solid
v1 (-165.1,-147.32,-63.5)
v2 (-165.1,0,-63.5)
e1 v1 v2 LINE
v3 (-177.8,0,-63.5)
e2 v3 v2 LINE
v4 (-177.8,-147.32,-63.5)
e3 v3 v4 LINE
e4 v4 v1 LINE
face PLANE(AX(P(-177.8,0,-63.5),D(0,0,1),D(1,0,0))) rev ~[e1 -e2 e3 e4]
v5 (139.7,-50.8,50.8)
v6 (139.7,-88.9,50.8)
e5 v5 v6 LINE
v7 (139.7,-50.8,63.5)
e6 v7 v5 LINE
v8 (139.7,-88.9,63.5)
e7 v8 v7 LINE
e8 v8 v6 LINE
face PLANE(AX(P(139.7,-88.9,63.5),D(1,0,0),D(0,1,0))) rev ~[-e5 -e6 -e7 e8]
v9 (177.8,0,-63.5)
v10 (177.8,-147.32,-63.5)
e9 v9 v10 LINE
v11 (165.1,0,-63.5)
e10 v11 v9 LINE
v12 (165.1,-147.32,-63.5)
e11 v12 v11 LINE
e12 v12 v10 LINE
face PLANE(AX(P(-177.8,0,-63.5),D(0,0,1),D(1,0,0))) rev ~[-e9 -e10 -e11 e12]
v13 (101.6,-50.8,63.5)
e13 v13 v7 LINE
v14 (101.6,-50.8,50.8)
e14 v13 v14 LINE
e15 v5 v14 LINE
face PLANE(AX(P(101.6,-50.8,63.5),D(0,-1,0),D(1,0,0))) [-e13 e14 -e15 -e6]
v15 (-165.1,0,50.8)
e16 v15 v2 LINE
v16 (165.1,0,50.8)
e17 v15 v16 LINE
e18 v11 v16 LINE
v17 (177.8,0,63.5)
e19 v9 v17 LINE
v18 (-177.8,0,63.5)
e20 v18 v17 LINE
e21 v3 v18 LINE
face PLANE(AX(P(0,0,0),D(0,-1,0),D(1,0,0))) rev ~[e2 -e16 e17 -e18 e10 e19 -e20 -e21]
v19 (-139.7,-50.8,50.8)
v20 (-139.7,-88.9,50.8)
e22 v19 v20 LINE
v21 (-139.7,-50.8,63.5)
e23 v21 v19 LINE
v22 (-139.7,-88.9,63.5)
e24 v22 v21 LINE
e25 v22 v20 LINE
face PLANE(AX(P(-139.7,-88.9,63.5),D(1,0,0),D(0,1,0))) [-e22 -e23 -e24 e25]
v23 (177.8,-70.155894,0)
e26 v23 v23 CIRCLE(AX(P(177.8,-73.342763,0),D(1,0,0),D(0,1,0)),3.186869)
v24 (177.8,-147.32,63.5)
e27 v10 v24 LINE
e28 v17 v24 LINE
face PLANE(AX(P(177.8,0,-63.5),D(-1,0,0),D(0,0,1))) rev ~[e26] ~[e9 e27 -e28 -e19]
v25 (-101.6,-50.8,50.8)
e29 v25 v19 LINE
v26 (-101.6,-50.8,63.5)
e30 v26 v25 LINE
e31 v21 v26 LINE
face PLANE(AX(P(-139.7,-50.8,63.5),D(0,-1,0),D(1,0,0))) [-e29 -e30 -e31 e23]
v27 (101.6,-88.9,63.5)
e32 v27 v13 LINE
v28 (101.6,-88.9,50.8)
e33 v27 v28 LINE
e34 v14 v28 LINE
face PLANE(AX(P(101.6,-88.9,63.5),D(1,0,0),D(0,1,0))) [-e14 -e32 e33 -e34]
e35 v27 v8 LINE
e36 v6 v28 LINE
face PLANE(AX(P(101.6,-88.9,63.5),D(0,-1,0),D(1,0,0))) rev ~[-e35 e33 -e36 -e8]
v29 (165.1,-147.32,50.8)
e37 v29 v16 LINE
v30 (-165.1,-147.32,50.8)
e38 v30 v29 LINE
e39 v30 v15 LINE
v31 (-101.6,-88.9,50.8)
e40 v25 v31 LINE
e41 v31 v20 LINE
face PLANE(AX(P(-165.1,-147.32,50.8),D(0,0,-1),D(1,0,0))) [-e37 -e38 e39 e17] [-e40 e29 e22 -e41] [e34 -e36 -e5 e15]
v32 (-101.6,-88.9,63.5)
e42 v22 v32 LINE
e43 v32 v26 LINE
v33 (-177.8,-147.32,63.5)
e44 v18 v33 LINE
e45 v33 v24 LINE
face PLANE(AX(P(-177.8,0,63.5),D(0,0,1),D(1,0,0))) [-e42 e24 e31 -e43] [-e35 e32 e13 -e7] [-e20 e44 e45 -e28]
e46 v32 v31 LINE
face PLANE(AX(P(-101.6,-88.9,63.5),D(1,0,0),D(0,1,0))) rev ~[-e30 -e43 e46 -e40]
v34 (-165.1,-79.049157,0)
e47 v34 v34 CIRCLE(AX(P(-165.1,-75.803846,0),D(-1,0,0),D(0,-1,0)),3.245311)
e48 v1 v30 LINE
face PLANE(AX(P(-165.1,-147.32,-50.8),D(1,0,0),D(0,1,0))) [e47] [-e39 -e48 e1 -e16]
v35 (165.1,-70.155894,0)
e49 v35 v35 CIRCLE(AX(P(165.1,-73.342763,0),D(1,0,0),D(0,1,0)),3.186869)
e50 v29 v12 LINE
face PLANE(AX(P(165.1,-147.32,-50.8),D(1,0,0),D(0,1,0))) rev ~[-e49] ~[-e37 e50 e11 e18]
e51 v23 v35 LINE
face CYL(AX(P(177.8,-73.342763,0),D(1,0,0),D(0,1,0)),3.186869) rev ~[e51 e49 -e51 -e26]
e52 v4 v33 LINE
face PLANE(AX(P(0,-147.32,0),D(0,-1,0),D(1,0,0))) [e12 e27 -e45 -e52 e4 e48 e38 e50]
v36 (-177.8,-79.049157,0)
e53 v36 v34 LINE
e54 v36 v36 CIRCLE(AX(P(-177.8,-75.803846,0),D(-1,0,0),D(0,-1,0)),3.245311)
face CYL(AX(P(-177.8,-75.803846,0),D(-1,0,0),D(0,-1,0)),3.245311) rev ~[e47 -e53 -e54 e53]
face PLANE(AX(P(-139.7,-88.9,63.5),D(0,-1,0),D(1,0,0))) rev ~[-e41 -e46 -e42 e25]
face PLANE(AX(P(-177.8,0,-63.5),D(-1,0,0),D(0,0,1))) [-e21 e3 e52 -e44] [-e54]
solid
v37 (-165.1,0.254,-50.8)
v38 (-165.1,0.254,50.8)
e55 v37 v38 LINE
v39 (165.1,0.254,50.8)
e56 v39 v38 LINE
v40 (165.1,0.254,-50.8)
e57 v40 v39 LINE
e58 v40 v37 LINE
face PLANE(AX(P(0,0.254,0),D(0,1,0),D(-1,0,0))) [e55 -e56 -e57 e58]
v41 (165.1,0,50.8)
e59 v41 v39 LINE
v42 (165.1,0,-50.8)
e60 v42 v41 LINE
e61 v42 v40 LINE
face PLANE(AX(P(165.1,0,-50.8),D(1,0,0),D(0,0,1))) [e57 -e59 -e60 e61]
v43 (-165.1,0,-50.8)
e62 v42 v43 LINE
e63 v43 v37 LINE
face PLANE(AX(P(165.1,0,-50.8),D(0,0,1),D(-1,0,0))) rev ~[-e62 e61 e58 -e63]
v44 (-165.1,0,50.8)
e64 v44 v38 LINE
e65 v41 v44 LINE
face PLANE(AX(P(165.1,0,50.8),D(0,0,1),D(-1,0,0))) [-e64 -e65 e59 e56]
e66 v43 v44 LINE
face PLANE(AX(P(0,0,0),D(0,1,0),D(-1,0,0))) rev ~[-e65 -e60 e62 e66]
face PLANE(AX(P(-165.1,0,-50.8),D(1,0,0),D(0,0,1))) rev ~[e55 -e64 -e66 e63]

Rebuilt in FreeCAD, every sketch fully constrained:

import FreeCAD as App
import Part
import Sketcher

V = App.Vector
Q = App.Units.Quantity


def add_polygon(sketch, points):
    """Adds a closed chain of lines whose ends are joined by coincident constraints."""
    first, n = sketch.GeometryCount, len(points)
    for a, b in zip(points, points[1:] + points[:1]):
        sketch.addGeometry(Part.LineSegment(App.Vector(*a, 0), App.Vector(*b, 0)), False)
    for i in range(n):
        sketch.addConstraint(Sketcher.Constraint("Coincident", first + i, 2, first + (i + 1) % n, 1))

doc = App.newDocument("Part")
params = doc.addObject("Spreadsheet::Sheet", "Params")
for row, (alias, value) in enumerate([
    ("sketch1_width", "14 in"),
    ("sketch1_height", "5 in"),
    ("pad1_length", "5.8 in"),
    ("sketch2_width", "13 in"),
    ("sketch2_height", "4 in"),
    ("pocket2_length", "1 in"),
    ("pocket3_length", "1 in"),
    ("sketch5_width", "13 in"),
    ("sketch5_height", "5.8 in"),
    ("pocket4_length", "1 in"),
    ("sketch6_width", "1.5 in"),
    ("pocket5_length", "1 in"),
    ("sketch7_width", "1.5 in"),
    ("pocket6_length", "1 in"),
    ("sketch8_width", "13 in"),
    ("sketch8_height", "4 in"),
    ("pad2_length", "0.01 in"),
], start=1):
    params.set(f"A{row}", alias)
    params.set(f"B{row}", "=" + value)
    params.setAlias(f"B{row}", alias)

body = doc.addObject("PartDesign::Body", "Body")

# Sketch on XZ plane
sketch1 = body.newObject("Sketcher::SketchObject", "Sketch")
sketch1.AttachmentSupport = (doc.getObject("XZ_Plane"), [""])
sketch1.MapMode = "FlatFace"
add_polygon(sketch1, [(-178, 64), (-178, -64), (178, -64), (178, 64)])  # lines 0-3
sketch1.addConstraint(Sketcher.Constraint("Vertical", 0))
sketch1.addConstraint(Sketcher.Constraint("Horizontal", 1))
sketch1.addConstraint(Sketcher.Constraint("Vertical", 2))
sketch1.addConstraint(Sketcher.Constraint("Horizontal", 3))
sketch1.addConstraint(Sketcher.Constraint("Symmetric", 0, 2, 2, 2, -1, 1))
sketch1.addConstraint(Sketcher.Constraint("DistanceX", 1, 1, 1, 2, Q("14 in")))
sketch1.addConstraint(Sketcher.Constraint("DistanceY", 0, 2, 0, 1, Q("5 in")))
sketch1.setExpression("Constraints[9]", "Params.sketch1_width")
sketch1.setExpression("Constraints[10]", "Params.sketch1_height")
pad1 = body.newObject("PartDesign::Pad", "Pad")
pad1.Profile = sketch1
pad1.setExpression("Length", "Params.pad1_length")

# Sketch on XZ plane
sketch2 = body.newObject("Sketcher::SketchObject", "Sketch001")
sketch2.AttachmentSupport = (doc.getObject("XZ_Plane"), [""])
sketch2.MapMode = "FlatFace"
sketch2.AttachmentOffset = App.Placement(V(0, 0, 5.8 * 25.4), App.Rotation())
add_polygon(sketch2, [(-165, 51), (-165, -51), (165, -51), (165, 51)])  # lines 0-3
sketch2.addConstraint(Sketcher.Constraint("Vertical", 0))
sketch2.addConstraint(Sketcher.Constraint("Horizontal", 1))
sketch2.addConstraint(Sketcher.Constraint("Vertical", 2))
sketch2.addConstraint(Sketcher.Constraint("Horizontal", 3))
sketch2.addConstraint(Sketcher.Constraint("Symmetric", 0, 2, 2, 2, -1, 1))
sketch2.addConstraint(Sketcher.Constraint("DistanceX", 1, 1, 1, 2, Q("13 in")))
sketch2.addConstraint(Sketcher.Constraint("DistanceY", 0, 2, 0, 1, Q("4 in")))
sketch2.setExpression("Constraints[9]", "Params.sketch2_width")
sketch2.setExpression("Constraints[10]", "Params.sketch2_height")
pocket1 = body.newObject("PartDesign::Pocket", "Pocket")
pocket1.Profile = sketch2
pocket1.Type = "ThroughAll"

# Sketch on YZ plane
sketch3 = body.newObject("Sketcher::SketchObject", "Sketch002")
sketch3.AttachmentSupport = (doc.getObject("YZ_Plane"), [""])
sketch3.MapMode = "FlatFace"
sketch3.AttachmentOffset = App.Placement(V(0, 0, -7 * 25.4), App.Rotation())
sketch3.addGeometry(Part.Circle(V(-75.8, 0, 0), V(0, 0, 1), 3.2), False)
sketch3.addConstraint(Sketcher.Constraint("PointOnObject", 0, 3, -1))
sketch3.addConstraint(Sketcher.Constraint("Diameter", 0, Q("6.490622 mm")))
sketch3.addConstraint(Sketcher.Constraint("DistanceX", 0, 3, -1, 1, Q("75.803846 mm")))
pocket2 = body.newObject("PartDesign::Pocket", "Pocket001")
pocket2.Profile = sketch3
pocket2.setExpression("Length", "Params.pocket2_length")
pocket2.Reversed = True

# Sketch on YZ plane
sketch4 = body.newObject("Sketcher::SketchObject", "Sketch003")
sketch4.AttachmentSupport = (doc.getObject("YZ_Plane"), [""])
sketch4.MapMode = "FlatFace"
sketch4.AttachmentOffset = App.Placement(V(0, 0, 7 * 25.4), App.Rotation())
sketch4.addGeometry(Part.Circle(V(-73.3, 0, 0), V(0, 0, 1), 3.2), False)
sketch4.addConstraint(Sketcher.Constraint("PointOnObject", 0, 3, -1))
sketch4.addConstraint(Sketcher.Constraint("Diameter", 0, Q("6.373738 mm")))
sketch4.addConstraint(Sketcher.Constraint("DistanceX", 0, 3, -1, 1, Q("73.342763 mm")))
pocket3 = body.newObject("PartDesign::Pocket", "Pocket002")
pocket3.Profile = sketch4
pocket3.setExpression("Length", "Params.pocket3_length")

# Sketch on XY plane
sketch5 = body.newObject("Sketcher::SketchObject", "Sketch004")
sketch5.AttachmentSupport = (doc.getObject("XY_Plane"), [""])
sketch5.MapMode = "FlatFace"
sketch5.AttachmentOffset = App.Placement(V(0, 0, -2 * 25.4), App.Rotation())
add_polygon(sketch5, [(-165, 0), (-165, -147), (165, -147), (165, 0)])  # lines 0-3
sketch5.addConstraint(Sketcher.Constraint("Vertical", 0))
sketch5.addConstraint(Sketcher.Constraint("Horizontal", 1))
sketch5.addConstraint(Sketcher.Constraint("Vertical", 2))
sketch5.addConstraint(Sketcher.Constraint("Horizontal", 3))
sketch5.addConstraint(Sketcher.Constraint("Symmetric", 2, 2, 3, 2, -1, 1))
sketch5.addConstraint(Sketcher.Constraint("DistanceX", 1, 1, 1, 2, Q("13 in")))
sketch5.addConstraint(Sketcher.Constraint("DistanceY", 0, 2, 0, 1, Q("5.8 in")))
sketch5.setExpression("Constraints[9]", "Params.sketch5_width")
sketch5.setExpression("Constraints[10]", "Params.sketch5_height")
pocket4 = body.newObject("PartDesign::Pocket", "Pocket003")
pocket4.Profile = sketch5
pocket4.setExpression("Length", "Params.pocket4_length")

# Sketch on XY plane
sketch6 = body.newObject("Sketcher::SketchObject", "Sketch005")
sketch6.AttachmentSupport = (doc.getObject("XY_Plane"), [""])
sketch6.MapMode = "FlatFace"
sketch6.AttachmentOffset = App.Placement(V(0, 0, 2.5 * 25.4), App.Rotation())
add_polygon(sketch6, [(102, -51), (102, -89), (140, -89), (140, -51)])  # lines 0-3
sketch6.addConstraint(Sketcher.Constraint("Vertical", 0))
sketch6.addConstraint(Sketcher.Constraint("Horizontal", 1))
sketch6.addConstraint(Sketcher.Constraint("Vertical", 2))
sketch6.addConstraint(Sketcher.Constraint("Horizontal", 3))
sketch6.addConstraint(Sketcher.Constraint("Equal", 3, 0))
sketch6.addConstraint(Sketcher.Constraint("DistanceX", 1, 1, 1, 2, Q("1.5 in")))
sketch6.addConstraint(Sketcher.Constraint("DistanceX", -1, 1, 0, 2, Q("4 in")))
sketch6.addConstraint(Sketcher.Constraint("DistanceY", 2, 2, -1, 1, Q("2 in")))
sketch6.setExpression("Constraints[9]", "Params.sketch6_width")
pocket5 = body.newObject("PartDesign::Pocket", "Pocket004")
pocket5.Profile = sketch6
pocket5.setExpression("Length", "Params.pocket5_length")

# Sketch on XY plane
sketch7 = body.newObject("Sketcher::SketchObject", "Sketch006")
sketch7.AttachmentSupport = (doc.getObject("XY_Plane"), [""])
sketch7.MapMode = "FlatFace"
sketch7.AttachmentOffset = App.Placement(V(0, 0, 2.5 * 25.4), App.Rotation())
add_polygon(sketch7, [(-140, -51), (-140, -89), (-102, -89), (-102, -51)])  # lines 0-3
sketch7.addConstraint(Sketcher.Constraint("Vertical", 0))
sketch7.addConstraint(Sketcher.Constraint("Horizontal", 1))
sketch7.addConstraint(Sketcher.Constraint("Vertical", 2))
sketch7.addConstraint(Sketcher.Constraint("Horizontal", 3))
sketch7.addConstraint(Sketcher.Constraint("Equal", 3, 0))
sketch7.addConstraint(Sketcher.Constraint("DistanceX", 1, 1, 1, 2, Q("1.5 in")))
sketch7.addConstraint(Sketcher.Constraint("DistanceX", 1, 2, -1, 1, Q("4 in")))
sketch7.addConstraint(Sketcher.Constraint("DistanceY", 2, 2, -1, 1, Q("2 in")))
sketch7.setExpression("Constraints[9]", "Params.sketch7_width")
pocket6 = body.newObject("PartDesign::Pocket", "Pocket005")
pocket6.Profile = sketch7
pocket6.setExpression("Length", "Params.pocket6_length")
body2 = doc.addObject("PartDesign::Body", "Body001")

# Sketch on XZ plane
sketch8 = body2.newObject("Sketcher::SketchObject", "Sketch007")
sketch8.AttachmentSupport = (doc.getObject("XZ_Plane001"), [""])
sketch8.MapMode = "FlatFace"
add_polygon(sketch8, [(165, 51), (165, -51), (-165, -51), (-165, 51)])  # lines 0-3
sketch8.addConstraint(Sketcher.Constraint("Vertical", 0))
sketch8.addConstraint(Sketcher.Constraint("Horizontal", 1))
sketch8.addConstraint(Sketcher.Constraint("Vertical", 2))
sketch8.addConstraint(Sketcher.Constraint("Horizontal", 3))
sketch8.addConstraint(Sketcher.Constraint("Symmetric", 0, 2, 2, 2, -1, 1))
sketch8.addConstraint(Sketcher.Constraint("DistanceX", 1, 2, 1, 1, Q("13 in")))
sketch8.addConstraint(Sketcher.Constraint("DistanceY", 0, 2, 0, 1, Q("4 in")))
sketch8.setExpression("Constraints[9]", "Params.sketch8_width")
sketch8.setExpression("Constraints[10]", "Params.sketch8_height")
pad2 = body2.newObject("PartDesign::Pad", "Pad001")
pad2.Profile = sketch8
pad2.setExpression("Length", "Params.pad2_length")
pad2.Reversed = True

doc.recompute()
